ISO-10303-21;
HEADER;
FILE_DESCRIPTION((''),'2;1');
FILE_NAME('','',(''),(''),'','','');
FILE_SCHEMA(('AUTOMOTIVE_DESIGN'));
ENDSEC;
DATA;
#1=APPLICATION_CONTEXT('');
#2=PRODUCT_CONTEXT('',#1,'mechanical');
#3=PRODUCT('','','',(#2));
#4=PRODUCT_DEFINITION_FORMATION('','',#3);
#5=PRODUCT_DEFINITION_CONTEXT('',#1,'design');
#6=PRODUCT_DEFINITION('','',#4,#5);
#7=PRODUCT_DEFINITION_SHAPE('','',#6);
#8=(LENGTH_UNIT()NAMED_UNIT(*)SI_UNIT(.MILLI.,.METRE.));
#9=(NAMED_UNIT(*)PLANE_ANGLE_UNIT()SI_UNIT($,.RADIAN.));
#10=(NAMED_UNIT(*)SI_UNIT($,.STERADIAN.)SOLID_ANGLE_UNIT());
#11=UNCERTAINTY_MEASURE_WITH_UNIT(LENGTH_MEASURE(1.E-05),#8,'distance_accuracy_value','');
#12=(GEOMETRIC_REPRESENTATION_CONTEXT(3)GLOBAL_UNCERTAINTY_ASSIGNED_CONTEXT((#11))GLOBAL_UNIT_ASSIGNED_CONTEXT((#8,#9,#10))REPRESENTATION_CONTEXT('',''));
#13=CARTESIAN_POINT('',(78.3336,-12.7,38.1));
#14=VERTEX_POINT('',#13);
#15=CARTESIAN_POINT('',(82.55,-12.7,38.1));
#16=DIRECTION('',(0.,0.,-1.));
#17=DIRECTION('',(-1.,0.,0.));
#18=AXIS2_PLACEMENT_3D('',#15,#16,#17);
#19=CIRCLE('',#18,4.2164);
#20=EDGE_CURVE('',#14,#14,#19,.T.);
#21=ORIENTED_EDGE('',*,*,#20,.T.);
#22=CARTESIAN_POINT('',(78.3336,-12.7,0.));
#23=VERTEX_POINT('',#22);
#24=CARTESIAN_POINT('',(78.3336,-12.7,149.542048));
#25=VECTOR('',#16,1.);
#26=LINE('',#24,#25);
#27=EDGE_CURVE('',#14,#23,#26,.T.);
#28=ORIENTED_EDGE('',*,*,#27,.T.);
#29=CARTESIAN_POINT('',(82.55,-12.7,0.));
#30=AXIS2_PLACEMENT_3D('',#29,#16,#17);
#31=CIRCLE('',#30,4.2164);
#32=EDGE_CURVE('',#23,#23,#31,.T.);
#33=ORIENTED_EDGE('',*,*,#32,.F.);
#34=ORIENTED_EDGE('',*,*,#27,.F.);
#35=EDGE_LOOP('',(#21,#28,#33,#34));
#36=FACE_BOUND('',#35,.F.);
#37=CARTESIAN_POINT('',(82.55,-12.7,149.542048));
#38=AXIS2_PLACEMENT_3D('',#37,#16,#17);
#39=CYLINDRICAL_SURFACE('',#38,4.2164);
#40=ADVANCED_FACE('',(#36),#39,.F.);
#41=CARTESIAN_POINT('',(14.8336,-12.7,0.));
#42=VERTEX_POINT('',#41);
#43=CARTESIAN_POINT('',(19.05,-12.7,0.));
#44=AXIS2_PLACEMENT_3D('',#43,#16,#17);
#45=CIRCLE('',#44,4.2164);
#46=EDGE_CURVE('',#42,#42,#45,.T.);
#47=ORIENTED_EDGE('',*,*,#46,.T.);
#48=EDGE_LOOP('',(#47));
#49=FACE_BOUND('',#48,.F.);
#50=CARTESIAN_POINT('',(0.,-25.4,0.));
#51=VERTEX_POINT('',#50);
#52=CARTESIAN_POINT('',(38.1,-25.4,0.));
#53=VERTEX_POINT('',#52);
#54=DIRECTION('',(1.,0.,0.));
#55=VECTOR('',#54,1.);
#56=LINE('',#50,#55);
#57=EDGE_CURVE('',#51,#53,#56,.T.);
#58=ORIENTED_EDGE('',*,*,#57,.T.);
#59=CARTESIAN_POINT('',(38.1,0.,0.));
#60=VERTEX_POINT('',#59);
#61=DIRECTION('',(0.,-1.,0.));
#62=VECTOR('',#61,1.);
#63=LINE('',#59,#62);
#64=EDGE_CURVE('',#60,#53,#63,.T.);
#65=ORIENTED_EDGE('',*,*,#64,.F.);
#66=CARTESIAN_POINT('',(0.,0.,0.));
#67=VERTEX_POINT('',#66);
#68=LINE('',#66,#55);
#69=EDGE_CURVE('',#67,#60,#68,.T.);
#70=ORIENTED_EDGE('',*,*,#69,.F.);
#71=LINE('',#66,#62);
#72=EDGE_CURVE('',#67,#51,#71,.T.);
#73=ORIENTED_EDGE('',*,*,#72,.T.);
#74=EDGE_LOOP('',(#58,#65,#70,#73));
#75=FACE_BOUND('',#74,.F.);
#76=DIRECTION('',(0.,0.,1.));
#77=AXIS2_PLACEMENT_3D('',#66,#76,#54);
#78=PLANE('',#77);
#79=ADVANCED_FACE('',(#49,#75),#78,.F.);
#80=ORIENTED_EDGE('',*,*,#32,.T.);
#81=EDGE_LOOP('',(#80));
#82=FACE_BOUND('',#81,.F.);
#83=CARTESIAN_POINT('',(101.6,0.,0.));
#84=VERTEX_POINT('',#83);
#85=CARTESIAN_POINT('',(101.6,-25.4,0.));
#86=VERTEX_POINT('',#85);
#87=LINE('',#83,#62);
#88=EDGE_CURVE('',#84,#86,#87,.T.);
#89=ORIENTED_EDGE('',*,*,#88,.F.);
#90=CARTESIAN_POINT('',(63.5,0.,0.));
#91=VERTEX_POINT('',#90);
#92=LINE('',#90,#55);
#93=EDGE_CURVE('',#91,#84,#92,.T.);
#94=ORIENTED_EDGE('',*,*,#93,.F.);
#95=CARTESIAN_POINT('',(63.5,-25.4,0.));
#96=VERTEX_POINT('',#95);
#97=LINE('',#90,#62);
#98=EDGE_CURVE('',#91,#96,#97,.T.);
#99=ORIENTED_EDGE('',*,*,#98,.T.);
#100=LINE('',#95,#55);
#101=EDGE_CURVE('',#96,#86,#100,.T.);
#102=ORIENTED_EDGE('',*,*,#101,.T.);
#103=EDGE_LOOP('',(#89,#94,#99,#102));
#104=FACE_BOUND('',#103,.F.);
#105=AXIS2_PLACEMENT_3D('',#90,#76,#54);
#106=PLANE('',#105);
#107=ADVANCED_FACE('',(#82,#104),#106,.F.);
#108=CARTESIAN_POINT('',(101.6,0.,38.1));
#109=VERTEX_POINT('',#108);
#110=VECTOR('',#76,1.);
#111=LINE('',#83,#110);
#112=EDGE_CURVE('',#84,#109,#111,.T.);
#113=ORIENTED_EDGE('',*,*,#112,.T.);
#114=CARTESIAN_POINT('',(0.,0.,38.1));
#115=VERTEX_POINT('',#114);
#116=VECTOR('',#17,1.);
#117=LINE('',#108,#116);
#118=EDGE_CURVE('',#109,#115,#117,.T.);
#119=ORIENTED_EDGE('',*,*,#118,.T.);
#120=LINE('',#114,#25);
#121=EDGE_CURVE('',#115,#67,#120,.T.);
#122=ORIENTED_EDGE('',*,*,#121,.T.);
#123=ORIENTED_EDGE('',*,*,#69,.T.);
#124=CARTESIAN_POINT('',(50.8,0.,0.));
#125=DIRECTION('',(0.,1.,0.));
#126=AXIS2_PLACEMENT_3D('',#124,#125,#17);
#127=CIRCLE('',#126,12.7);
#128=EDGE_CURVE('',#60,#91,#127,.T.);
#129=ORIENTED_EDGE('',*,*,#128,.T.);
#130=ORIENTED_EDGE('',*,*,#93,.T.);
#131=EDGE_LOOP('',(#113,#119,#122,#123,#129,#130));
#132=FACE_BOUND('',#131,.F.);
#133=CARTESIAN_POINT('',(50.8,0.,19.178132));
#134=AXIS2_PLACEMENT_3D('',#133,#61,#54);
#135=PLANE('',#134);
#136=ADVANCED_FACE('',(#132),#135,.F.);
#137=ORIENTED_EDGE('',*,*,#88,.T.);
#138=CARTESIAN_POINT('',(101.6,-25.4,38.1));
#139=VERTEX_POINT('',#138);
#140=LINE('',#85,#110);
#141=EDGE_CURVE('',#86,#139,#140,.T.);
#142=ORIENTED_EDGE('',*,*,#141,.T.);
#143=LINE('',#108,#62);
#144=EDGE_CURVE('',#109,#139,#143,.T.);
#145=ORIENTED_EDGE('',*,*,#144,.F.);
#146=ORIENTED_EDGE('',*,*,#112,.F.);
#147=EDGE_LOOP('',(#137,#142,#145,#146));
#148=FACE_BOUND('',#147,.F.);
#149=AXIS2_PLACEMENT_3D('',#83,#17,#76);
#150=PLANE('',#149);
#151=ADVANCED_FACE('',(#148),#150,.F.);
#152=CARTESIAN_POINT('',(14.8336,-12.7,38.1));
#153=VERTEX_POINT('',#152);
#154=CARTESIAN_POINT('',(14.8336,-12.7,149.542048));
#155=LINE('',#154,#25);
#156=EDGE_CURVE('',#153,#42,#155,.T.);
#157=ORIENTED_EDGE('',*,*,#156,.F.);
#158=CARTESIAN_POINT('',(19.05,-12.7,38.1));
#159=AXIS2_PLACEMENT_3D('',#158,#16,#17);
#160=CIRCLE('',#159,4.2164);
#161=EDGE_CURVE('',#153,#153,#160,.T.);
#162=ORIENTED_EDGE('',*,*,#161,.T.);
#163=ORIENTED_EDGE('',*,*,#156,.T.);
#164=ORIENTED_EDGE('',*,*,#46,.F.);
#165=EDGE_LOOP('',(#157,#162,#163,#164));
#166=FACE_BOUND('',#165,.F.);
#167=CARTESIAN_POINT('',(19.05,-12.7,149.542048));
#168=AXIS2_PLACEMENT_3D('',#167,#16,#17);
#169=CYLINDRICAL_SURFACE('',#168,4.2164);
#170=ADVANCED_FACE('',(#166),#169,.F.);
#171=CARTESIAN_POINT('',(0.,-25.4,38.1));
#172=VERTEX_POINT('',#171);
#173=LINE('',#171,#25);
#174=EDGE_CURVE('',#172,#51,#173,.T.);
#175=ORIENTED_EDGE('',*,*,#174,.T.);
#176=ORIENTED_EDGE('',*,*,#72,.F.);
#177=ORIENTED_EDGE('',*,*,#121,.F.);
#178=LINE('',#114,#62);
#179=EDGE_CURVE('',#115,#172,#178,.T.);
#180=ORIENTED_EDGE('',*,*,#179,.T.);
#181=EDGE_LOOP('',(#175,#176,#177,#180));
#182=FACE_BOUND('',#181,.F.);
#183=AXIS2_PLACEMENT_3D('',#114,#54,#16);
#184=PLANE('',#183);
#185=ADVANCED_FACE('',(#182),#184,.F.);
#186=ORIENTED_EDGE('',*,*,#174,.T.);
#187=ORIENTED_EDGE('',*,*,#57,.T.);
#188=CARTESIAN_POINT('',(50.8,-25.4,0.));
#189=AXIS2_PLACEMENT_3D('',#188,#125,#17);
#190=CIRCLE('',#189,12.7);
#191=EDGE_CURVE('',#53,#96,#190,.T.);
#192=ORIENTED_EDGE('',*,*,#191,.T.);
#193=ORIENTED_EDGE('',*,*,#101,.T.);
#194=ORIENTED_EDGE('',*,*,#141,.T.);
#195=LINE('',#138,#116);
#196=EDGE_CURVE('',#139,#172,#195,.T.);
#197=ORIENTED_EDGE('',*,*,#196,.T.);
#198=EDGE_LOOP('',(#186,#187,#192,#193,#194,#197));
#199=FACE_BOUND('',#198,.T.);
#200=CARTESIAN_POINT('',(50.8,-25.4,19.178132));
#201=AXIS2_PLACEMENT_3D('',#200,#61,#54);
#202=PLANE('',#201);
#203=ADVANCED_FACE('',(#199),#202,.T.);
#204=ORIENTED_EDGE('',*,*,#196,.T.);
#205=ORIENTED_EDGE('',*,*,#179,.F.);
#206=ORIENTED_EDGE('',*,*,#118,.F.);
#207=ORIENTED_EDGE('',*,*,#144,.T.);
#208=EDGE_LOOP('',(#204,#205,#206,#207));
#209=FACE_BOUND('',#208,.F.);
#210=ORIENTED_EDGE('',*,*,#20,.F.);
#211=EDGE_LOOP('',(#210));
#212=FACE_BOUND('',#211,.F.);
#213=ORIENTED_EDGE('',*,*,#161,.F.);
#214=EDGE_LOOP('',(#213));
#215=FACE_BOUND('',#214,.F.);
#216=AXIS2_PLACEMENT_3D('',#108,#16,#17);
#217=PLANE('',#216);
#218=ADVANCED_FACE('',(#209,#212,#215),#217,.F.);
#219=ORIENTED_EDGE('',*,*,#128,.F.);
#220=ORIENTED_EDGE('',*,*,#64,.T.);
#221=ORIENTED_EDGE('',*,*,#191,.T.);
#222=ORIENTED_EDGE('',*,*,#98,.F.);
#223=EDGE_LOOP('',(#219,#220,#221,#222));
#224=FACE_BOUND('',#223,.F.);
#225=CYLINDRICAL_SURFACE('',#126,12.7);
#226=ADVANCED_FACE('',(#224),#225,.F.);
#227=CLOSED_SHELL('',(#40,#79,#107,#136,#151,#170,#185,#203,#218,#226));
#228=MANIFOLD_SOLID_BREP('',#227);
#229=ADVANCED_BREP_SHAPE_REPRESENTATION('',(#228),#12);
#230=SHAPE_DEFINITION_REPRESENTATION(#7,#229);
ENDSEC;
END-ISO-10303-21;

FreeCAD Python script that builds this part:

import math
import FreeCAD as App
import Part
import Sketcher

V = App.Vector
Q = App.Units.Quantity

doc = App.newDocument("Part")
body = doc.addObject("PartDesign::Body", "Body")

# Sketch on XZ plane
sketch1 = doc.addObject("Sketcher::SketchObject", "Sketch")
body.addObject(sketch1)
sketch1.AttachmentSupport = (doc.XZ_Plane, [""])
sketch1.MapMode = "FlatFace"
sketch1.addGeometry(Part.LineSegment(V(0, 38, 0), V(0, 0, 0)), False)
sketch1.addGeometry(Part.LineSegment(V(0, 0, 0), V(38, 0, 0)), False)
sketch1.addGeometry(Part.ArcOfCircle(Part.Circle(V(51, 0, 0), V(0, 0, 1), 13), math.radians(0), math.radians(180)), False)
sketch1.addGeometry(Part.LineSegment(V(64, 0, 0), V(102, 0, 0)), False)
sketch1.addGeometry(Part.LineSegment(V(102, 0, 0), V(102, 38, 0)), False)
sketch1.addGeometry(Part.LineSegment(V(102, 38, 0), V(0, 38, 0)), False)
sketch1.addConstraint(Sketcher.Constraint("Coincident", 0, 2, 1, 1))
sketch1.addConstraint(Sketcher.Constraint("Coincident", 1, 2, 2, 2))
sketch1.addConstraint(Sketcher.Constraint("Coincident", 2, 1, 3, 1))
sketch1.addConstraint(Sketcher.Constraint("Coincident", 3, 2, 4, 1))
sketch1.addConstraint(Sketcher.Constraint("Coincident", 4, 2, 5, 1))
sketch1.addConstraint(Sketcher.Constraint("Coincident", 5, 2, 0, 1))
sketch1.addConstraint(Sketcher.Constraint("Vertical", 0))
sketch1.addConstraint(Sketcher.Constraint("Horizontal", 1))
sketch1.addConstraint(Sketcher.Constraint("Horizontal", 3))
sketch1.addConstraint(Sketcher.Constraint("Vertical", 4))
sketch1.addConstraint(Sketcher.Constraint("Horizontal", 5))
sketch1.addConstraint(Sketcher.Constraint("Coincident", 0, 2, -1, 1))
sketch1.addConstraint(Sketcher.Constraint("PointOnObject", 2, 3, -1))
sketch1.addConstraint(Sketcher.Constraint("PointOnObject", 2, 1, -1))
sketch1.addConstraint(Sketcher.Constraint("Equal", 1, 3))
sketch1.addConstraint(Sketcher.Constraint("Equal", 3, 0))
sketch1.addConstraint(Sketcher.Constraint("Radius", 2, Q("0.5 in")))
sketch1.addConstraint(Sketcher.Constraint("DistanceX", 5, 2, 5, 1, Q("4 in")))
pad1 = doc.addObject("PartDesign::Pad", "Pad")
body.addObject(pad1)
pad1.Profile = sketch1
pad1.Length = Q("1 in")

# Sketch on XY plane
sketch2 = doc.addObject("Sketcher::SketchObject", "Sketch001")
body.addObject(sketch2)
sketch2.AttachmentSupport = (doc.XY_Plane, [""])
sketch2.MapMode = "FlatFace"
sketch2.AttachmentOffset = App.Placement(V(0, 0, 1.5 * 25.4), App.Rotation())
sketch2.addGeometry(Part.Circle(V(19.1, -12.7, 0), V(0, 0, 1), 4.2), False)
sketch2.addGeometry(Part.Circle(V(82.5, -12.7, 0), V(0, 0, 1), 4.2), False)
sketch2.addConstraint(Sketcher.Constraint("Equal", 0, 1))
sketch2.addConstraint(Sketcher.Constraint("Horizontal", 0, 3, 1, 3))
sketch2.addConstraint(Sketcher.Constraint("Diameter", 0, Q("0.332 in")))
sketch2.addConstraint(Sketcher.Constraint("DistanceY", 0, 3, -1, 1, Q("0.5 in")))
sketch2.addConstraint(Sketcher.Constraint("DistanceX", 0, 3, 1, 3, Q("2.5 in")))
sketch2.addConstraint(Sketcher.Constraint("DistanceX", -1, 1, 0, 3, Q("0.75 in")))
doc.recompute()
hole = doc.addObject("PartDesign::Hole", "Hole")
body.addObject(hole)
hole.Profile = sketch2
hole.ThreadType = "None"
hole.Diameter = Q("0.332 in")
hole.DepthType = "ThroughAll"

doc.recompute()
